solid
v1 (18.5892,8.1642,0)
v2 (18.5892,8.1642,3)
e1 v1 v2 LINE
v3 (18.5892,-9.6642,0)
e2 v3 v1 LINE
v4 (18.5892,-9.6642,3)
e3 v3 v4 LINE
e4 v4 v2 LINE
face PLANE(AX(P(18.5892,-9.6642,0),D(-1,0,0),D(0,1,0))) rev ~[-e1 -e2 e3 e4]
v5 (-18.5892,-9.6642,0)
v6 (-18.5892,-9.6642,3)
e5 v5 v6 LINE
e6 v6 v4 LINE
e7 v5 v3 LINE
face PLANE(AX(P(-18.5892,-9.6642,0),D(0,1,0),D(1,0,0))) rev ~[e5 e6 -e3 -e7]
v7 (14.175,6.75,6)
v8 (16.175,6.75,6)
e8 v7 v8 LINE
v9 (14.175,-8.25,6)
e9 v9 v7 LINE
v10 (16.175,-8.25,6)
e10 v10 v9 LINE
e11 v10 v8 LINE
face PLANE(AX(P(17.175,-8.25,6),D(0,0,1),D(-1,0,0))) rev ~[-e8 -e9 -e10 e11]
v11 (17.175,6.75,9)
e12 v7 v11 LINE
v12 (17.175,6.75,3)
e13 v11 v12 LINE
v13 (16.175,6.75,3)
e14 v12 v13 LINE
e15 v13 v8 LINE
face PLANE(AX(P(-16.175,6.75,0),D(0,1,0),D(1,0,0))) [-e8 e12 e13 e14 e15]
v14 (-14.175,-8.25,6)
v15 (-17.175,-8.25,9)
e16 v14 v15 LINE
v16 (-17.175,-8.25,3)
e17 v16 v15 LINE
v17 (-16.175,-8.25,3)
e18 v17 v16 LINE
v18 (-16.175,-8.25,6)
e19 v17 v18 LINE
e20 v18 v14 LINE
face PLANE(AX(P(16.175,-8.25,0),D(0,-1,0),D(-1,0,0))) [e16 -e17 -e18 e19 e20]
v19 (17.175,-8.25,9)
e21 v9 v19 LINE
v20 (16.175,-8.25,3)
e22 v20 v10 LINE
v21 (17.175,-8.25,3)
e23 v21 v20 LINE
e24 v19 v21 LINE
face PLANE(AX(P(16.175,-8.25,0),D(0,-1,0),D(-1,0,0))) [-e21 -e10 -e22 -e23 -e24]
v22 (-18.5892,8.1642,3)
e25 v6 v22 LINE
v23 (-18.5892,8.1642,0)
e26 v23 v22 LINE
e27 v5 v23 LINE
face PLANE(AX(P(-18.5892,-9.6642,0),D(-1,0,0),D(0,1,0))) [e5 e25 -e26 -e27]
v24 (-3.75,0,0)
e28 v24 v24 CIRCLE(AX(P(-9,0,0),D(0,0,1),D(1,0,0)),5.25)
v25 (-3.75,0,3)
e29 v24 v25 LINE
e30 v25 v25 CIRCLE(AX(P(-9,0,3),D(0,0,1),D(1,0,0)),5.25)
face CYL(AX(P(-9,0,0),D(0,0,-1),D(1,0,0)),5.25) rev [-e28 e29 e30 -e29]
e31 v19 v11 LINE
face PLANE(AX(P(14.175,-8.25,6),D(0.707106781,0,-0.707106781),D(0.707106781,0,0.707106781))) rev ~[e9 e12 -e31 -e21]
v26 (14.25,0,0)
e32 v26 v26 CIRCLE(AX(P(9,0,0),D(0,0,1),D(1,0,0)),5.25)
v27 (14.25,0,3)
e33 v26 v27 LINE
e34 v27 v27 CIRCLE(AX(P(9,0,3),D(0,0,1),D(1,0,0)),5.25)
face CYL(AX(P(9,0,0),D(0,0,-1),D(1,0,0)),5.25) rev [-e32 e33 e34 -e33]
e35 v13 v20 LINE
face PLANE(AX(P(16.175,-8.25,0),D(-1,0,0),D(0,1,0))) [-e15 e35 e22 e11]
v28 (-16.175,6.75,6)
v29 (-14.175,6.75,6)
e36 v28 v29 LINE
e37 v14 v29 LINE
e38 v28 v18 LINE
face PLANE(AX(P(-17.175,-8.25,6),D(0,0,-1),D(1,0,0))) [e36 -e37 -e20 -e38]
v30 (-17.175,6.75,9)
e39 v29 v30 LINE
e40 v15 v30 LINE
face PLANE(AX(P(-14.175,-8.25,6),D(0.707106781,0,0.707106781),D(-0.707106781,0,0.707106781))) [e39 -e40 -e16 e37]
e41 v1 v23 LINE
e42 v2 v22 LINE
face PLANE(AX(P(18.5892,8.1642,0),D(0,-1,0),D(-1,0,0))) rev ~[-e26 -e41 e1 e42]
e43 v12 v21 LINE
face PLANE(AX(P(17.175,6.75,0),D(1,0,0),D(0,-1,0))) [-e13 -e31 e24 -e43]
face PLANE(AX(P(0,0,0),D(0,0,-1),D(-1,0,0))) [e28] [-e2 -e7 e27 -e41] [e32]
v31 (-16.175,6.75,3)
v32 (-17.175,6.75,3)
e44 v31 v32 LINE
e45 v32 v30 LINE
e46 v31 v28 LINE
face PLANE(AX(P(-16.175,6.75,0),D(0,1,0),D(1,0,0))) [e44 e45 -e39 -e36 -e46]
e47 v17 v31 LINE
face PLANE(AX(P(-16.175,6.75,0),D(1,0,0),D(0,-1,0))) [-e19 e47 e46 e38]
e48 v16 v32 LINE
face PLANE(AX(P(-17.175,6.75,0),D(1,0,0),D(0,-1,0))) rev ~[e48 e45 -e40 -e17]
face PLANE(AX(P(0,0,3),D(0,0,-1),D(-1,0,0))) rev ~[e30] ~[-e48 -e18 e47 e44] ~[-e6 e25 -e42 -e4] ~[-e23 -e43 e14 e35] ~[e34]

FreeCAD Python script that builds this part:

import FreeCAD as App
import Part
import Sketcher
Q = App.Units.Quantity

doc = App.newDocument("Part")
body = doc.addObject("PartDesign::Body", "Body")

# Sketch on XY plane
sketch1 = body.newObject("Sketcher::SketchObject", "Sketch")
sketch1.AttachmentSupport = (doc.getObject("XY_Plane"), [""])
sketch1.MapMode = "FlatFace"
sketch1.addGeometry([
    Part.LineSegment(App.Vector(16, 7, 0), App.Vector(-16, 7, 0)),  # 0
    Part.LineSegment(App.Vector(-16, 7, 0), App.Vector(-16, -8, 0)),  # 1
    Part.LineSegment(App.Vector(-16, -8, 0), App.Vector(16, -8, 0)),  # 2
    Part.LineSegment(App.Vector(16, -8, 0), App.Vector(16, 7, 0)),  # 3
    Part.Circle(App.Vector(-9, 0, 0), App.Vector(0, 0, 1), 5),  # 4
    Part.Circle(App.Vector(9, 0, 0), App.Vector(0, 0, 1), 5),  # 5
], False)
sketch1.addConstraint([
    Sketcher.Constraint("Coincident", 0, 2, 1, 1),
    Sketcher.Constraint("Coincident", 1, 2, 2, 1),
    Sketcher.Constraint("Coincident", 2, 2, 3, 1),
    Sketcher.Constraint("Coincident", 3, 2, 0, 1),
    Sketcher.Constraint("Horizontal", 0),
    Sketcher.Constraint("Vertical", 1),
    Sketcher.Constraint("Horizontal", 2),
    Sketcher.Constraint("Vertical", 3),
    Sketcher.Constraint("Equal", 4, 5),
    Sketcher.Constraint("Symmetric", 4, 3, 5, 3, -1, 1),
    Sketcher.Constraint("PointOnObject", 4, 3, -1),
    Sketcher.Constraint("Diameter", 4, Q("10.5 mm")),
    Sketcher.Constraint("DistanceY", 1, 2, 1, 1, Q("15 mm")),
    Sketcher.Constraint("DistanceX", 4, 3, -1, 1, Q("9 mm")),
    Sketcher.Constraint("DistanceX", 0, 2, 0, 1, Q("32.35 mm")),
    Sketcher.Constraint("DistanceY", -1, 1, 0, 2, Q("6.75 mm")),
    Sketcher.Constraint("DistanceX", 0, 2, -1, 1, Q("16.175 mm")),
])
pad1 = body.newObject("PartDesign::Pad", "Pad")
pad1.Profile = sketch1
pad1.Length = 3

# Sketch on XY plane
sketch2 = body.newObject("Sketcher::SketchObject", "Sketch001")
sketch2.AttachmentSupport = (doc.getObject("XY_Plane"), [""])
sketch2.MapMode = "FlatFace"
sketch2.addGeometry([
    Part.LineSegment(App.Vector(16.2, -8.2, 0), App.Vector(16.2, 6.8, 0)),  # 0
    Part.LineSegment(App.Vector(16.2, 6.8, 0), App.Vector(17.2, 6.8, 0)),  # 1
    Part.LineSegment(App.Vector(17.2, 6.8, 0), App.Vector(17.2, -8.2, 0)),  # 2
    Part.LineSegment(App.Vector(17.2, -8.2, 0), App.Vector(16.2, -8.2, 0)),  # 3
    Part.LineSegment(App.Vector(-17.2, 6.8, 0), App.Vector(-16.2, 6.8, 0)),  # 4
    Part.LineSegment(App.Vector(-16.2, 6.8, 0), App.Vector(-16.2, -8.2, 0)),  # 5
    Part.LineSegment(App.Vector(-16.2, -8.2, 0), App.Vector(-17.2, -8.2, 0)),  # 6
    Part.LineSegment(App.Vector(-17.2, -8.2, 0), App.Vector(-17.2, 6.8, 0)),  # 7
], False)
sketch2.addConstraint([
    Sketcher.Constraint("Coincident", 0, 2, 1, 1),
    Sketcher.Constraint("Coincident", 1, 2, 2, 1),
    Sketcher.Constraint("Coincident", 2, 2, 3, 1),
    Sketcher.Constraint("Coincident", 3, 2, 0, 1),
    Sketcher.Constraint("Coincident", 4, 2, 5, 1),
    Sketcher.Constraint("Coincident", 5, 2, 6, 1),
    Sketcher.Constraint("Coincident", 6, 2, 7, 1),
    Sketcher.Constraint("Coincident", 7, 2, 4, 1),
    Sketcher.Constraint("Vertical", 0),
    Sketcher.Constraint("Horizontal", 1),
    Sketcher.Constraint("Vertical", 2),
    Sketcher.Constraint("Horizontal", 3),
    Sketcher.Constraint("Horizontal", 4),
    Sketcher.Constraint("Vertical", 5),
    Sketcher.Constraint("Horizontal", 6),
    Sketcher.Constraint("Vertical", 7),
    Sketcher.Constraint("Symmetric", 0, 2, 4, 2, -2),
    Sketcher.Constraint("Symmetric", 2, 2, 6, 2, -2),
    Sketcher.Constraint("DistanceX", 1, 1, 1, 2, Q("1 mm")),
    Sketcher.Constraint("DistanceY", 0, 1, 0, 2, Q("15 mm")),
    Sketcher.Constraint("DistanceY", -1, 1, 0, 2, Q("6.75 mm")),
    Sketcher.Constraint("DistanceX", 4, 2, 0, 2, Q("32.35 mm")),
])
pad2 = body.newObject("PartDesign::Pad", "Pad001")
pad2.Profile = sketch2
pad2.Length = 6

# Sketch on XZ plane
sketch3 = body.newObject("Sketcher::SketchObject", "Sketch002")
sketch3.AttachmentSupport = (doc.getObject("XZ_Plane"), [""])
sketch3.MapMode = "FlatFace"
sketch3.AttachmentOffset = App.Placement(App.Vector(0, 0, 8.25), App.Rotation())
sketch3.addGeometry([
    Part.LineSegment(App.Vector(-17.2, 9, 0), App.Vector(-17.2, 6, 0)),  # 0
    Part.LineSegment(App.Vector(-17.2, 6, 0), App.Vector(-14.2, 6, 0)),  # 1
    Part.LineSegment(App.Vector(-14.2, 6, 0), App.Vector(-17.2, 9, 0)),  # 2
    Part.LineSegment(App.Vector(14.2, 6, 0), App.Vector(17.2, 6, 0)),  # 3
    Part.LineSegment(App.Vector(17.2, 6, 0), App.Vector(17.2, 9, 0)),  # 4
    Part.LineSegment(App.Vector(17.2, 9, 0), App.Vector(14.2, 6, 0)),  # 5
], False)
sketch3.addConstraint([
    Sketcher.Constraint("Coincident", 0, 2, 1, 1),
    Sketcher.Constraint("Coincident", 1, 2, 2, 1),
    Sketcher.Constraint("Coincident", 2, 2, 0, 1),
    Sketcher.Constraint("Coincident", 3, 2, 4, 1),
    Sketcher.Constraint("Coincident", 4, 2, 5, 1),
    Sketcher.Constraint("Coincident", 5, 2, 3, 1),
    Sketcher.Constraint("Vertical", 0),
    Sketcher.Constraint("Horizontal", 1),
    Sketcher.Constraint("Horizontal", 3),
    Sketcher.Constraint("Vertical", 4),
    Sketcher.Constraint("Symmetric", 0, 2, 3, 2, -2),
    Sketcher.Constraint("Perpendicular", 2, 5),
    Sketcher.Constraint("Horizontal", 2, 2, 4, 2),
    Sketcher.Constraint("Equal", 1, 3),
    Sketcher.Constraint("DistanceX", 1, 1, 1, 2, Q("3 mm")),
    Sketcher.Constraint("DistanceY", -1, 1, 0, 2, Q("6 mm")),
    Sketcher.Constraint("DistanceX", 1, 2, 3, 2, Q("31.35 mm")),
])
pad3 = body.newObject("PartDesign::Pad", "Pad002")
pad3.Profile = sketch3
pad3.Length = 15
pad3.Reversed = True

# Sketch on XY plane
sketch4 = body.newObject("Sketcher::SketchObject", "Sketch003")
sketch4.AttachmentSupport = (doc.getObject("XY_Plane"), [""])
sketch4.MapMode = "FlatFace"
sketch4.addGeometry([
    Part.LineSegment(App.Vector(-19, 8, 0), App.Vector(19, 8, 0)),  # 0
    Part.LineSegment(App.Vector(19, 8, 0), App.Vector(19, -10, 0)),  # 1
    Part.LineSegment(App.Vector(19, -10, 0), App.Vector(-19, -10, 0)),  # 2
    Part.LineSegment(App.Vector(-19, -10, 0), App.Vector(-19, 8, 0)),  # 3
    Part.LineSegment(App.Vector(17, 7, 0), App.Vector(-17, 7, 0)),  # 4
    Part.LineSegment(App.Vector(-17, 7, 0), App.Vector(-17, -8, 0)),  # 5
    Part.LineSegment(App.Vector(-17, -8, 0), App.Vector(17, -8, 0)),  # 6
    Part.LineSegment(App.Vector(17, -8, 0), App.Vector(17, 7, 0)),  # 7
], False)
sketch4.addConstraint([
    Sketcher.Constraint("Coincident", 0, 2, 1, 1),
    Sketcher.Constraint("Coincident", 1, 2, 2, 1),
    Sketcher.Constraint("Coincident", 2, 2, 3, 1),
    Sketcher.Constraint("Coincident", 3, 2, 0, 1),
    Sketcher.Constraint("Coincident", 4, 2, 5, 1),
    Sketcher.Constraint("Coincident", 5, 2, 6, 1),
    Sketcher.Constraint("Coincident", 6, 2, 7, 1),
    Sketcher.Constraint("Coincident", 7, 2, 4, 1),
    Sketcher.Constraint("Horizontal", 0),
    Sketcher.Constraint("Vertical", 1),
    Sketcher.Constraint("Horizontal", 2),
    Sketcher.Constraint("Vertical", 3),
    Sketcher.Constraint("Horizontal", 4),
    Sketcher.Constraint("Vertical", 5),
    Sketcher.Constraint("Horizontal", 6),
    Sketcher.Constraint("Vertical", 7),
    Sketcher.Constraint("DistanceY", 5, 2, 5, 1, Q("15 mm")),
    Sketcher.Constraint("DistanceX", 4, 2, 4, 1, Q("34.35 mm")),
    Sketcher.Constraint("DistanceY", -1, 1, 4, 2, Q("6.75 mm")),
    Sketcher.Constraint("DistanceX", 0, 1, 0, 2, Q("37.1784 mm")),
    Sketcher.Constraint("DistanceY", 1, 2, 1, 1, Q("17.8284 mm")),
    Sketcher.Constraint("DistanceX", 4, 2, -1, 1, Q("17.175 mm")),
    Sketcher.Constraint("DistanceX", -1, 1, 0, 2, Q("18.5892 mm")),
    Sketcher.Constraint("DistanceY", -1, 1, 0, 2, Q("8.1642 mm")),
])
pad4 = body.newObject("PartDesign::Pad", "Pad003")
pad4.Profile = sketch4
pad4.Length = 3

doc.recompute()
